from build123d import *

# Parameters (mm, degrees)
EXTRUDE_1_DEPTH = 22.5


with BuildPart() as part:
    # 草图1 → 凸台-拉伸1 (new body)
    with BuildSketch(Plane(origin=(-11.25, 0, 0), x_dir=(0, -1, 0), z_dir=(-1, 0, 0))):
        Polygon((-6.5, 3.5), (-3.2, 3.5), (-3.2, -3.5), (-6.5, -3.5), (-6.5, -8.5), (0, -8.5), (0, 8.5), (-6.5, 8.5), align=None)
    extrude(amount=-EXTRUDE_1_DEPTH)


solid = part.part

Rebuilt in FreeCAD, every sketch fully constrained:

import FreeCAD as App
import Part
import Sketcher


def add_polygon(sketch, points):
    """Adds a closed chain of lines whose ends are joined by coincident constraints."""
    first, n = sketch.GeometryCount, len(points)
    for a, b in zip(points, points[1:] + points[:1]):
        sketch.addGeometry(Part.LineSegment(App.Vector(*a, 0), App.Vector(*b, 0)), False)
    for i in range(n):
        sketch.addConstraint(Sketcher.Constraint("Coincident", first + i, 2, first + (i + 1) % n, 1))

doc = App.newDocument("Part")
body = doc.addObject("PartDesign::Body", "Body")

# Sketch on YZ plane
sketch1 = doc.addObject("Sketcher::SketchObject", "Sketch")
body.addObject(sketch1)
sketch1.AttachmentSupport = (doc.YZ_Plane, [""])
sketch1.MapMode = "FlatFace"
sketch1.AttachmentOffset = App.Placement(App.Vector(0, 0, -11.25), App.Rotation())
add_polygon(sketch1, [(6.5, 3.5), (3.2, 3.5), (3.2, -3.5), (6.5, -3.5), (6.5, -8.5), (0, -8.5), (0, 8.5), (6.5, 8.5)])  # lines 0-7
sketch1.addConstraint([
    Sketcher.Constraint("Horizontal", 0),
    Sketcher.Constraint("Vertical", 1),
    Sketcher.Constraint("Horizontal", 2),
    Sketcher.Constraint("Vertical", 3),
    Sketcher.Constraint("Horizontal", 4),
    Sketcher.Constraint("Vertical", 5),
    Sketcher.Constraint("Horizontal", 6),
    Sketcher.Constraint("Vertical", 7),
    Sketcher.Constraint("Symmetric", 4, 2, 5, 2, -1, 1),
    Sketcher.Constraint("Symmetric", 2, 2, 7, 2, -1),
    Sketcher.Constraint("DistanceY", 1, 2, 1, 1, 7.0),
    Sketcher.Constraint("DistanceY", 3, 2, 3, 1, 5.0),
    Sketcher.Constraint("DistanceX", 0, 2, 0, 1, 3.3),
    Sketcher.Constraint("DistanceX", 4, 2, 4, 1, 6.5),
])
pad1 = doc.addObject("PartDesign::Pad", "Pad")
body.addObject(pad1)
pad1.Profile = sketch1
pad1.Length = 22.5

doc.recompute()
